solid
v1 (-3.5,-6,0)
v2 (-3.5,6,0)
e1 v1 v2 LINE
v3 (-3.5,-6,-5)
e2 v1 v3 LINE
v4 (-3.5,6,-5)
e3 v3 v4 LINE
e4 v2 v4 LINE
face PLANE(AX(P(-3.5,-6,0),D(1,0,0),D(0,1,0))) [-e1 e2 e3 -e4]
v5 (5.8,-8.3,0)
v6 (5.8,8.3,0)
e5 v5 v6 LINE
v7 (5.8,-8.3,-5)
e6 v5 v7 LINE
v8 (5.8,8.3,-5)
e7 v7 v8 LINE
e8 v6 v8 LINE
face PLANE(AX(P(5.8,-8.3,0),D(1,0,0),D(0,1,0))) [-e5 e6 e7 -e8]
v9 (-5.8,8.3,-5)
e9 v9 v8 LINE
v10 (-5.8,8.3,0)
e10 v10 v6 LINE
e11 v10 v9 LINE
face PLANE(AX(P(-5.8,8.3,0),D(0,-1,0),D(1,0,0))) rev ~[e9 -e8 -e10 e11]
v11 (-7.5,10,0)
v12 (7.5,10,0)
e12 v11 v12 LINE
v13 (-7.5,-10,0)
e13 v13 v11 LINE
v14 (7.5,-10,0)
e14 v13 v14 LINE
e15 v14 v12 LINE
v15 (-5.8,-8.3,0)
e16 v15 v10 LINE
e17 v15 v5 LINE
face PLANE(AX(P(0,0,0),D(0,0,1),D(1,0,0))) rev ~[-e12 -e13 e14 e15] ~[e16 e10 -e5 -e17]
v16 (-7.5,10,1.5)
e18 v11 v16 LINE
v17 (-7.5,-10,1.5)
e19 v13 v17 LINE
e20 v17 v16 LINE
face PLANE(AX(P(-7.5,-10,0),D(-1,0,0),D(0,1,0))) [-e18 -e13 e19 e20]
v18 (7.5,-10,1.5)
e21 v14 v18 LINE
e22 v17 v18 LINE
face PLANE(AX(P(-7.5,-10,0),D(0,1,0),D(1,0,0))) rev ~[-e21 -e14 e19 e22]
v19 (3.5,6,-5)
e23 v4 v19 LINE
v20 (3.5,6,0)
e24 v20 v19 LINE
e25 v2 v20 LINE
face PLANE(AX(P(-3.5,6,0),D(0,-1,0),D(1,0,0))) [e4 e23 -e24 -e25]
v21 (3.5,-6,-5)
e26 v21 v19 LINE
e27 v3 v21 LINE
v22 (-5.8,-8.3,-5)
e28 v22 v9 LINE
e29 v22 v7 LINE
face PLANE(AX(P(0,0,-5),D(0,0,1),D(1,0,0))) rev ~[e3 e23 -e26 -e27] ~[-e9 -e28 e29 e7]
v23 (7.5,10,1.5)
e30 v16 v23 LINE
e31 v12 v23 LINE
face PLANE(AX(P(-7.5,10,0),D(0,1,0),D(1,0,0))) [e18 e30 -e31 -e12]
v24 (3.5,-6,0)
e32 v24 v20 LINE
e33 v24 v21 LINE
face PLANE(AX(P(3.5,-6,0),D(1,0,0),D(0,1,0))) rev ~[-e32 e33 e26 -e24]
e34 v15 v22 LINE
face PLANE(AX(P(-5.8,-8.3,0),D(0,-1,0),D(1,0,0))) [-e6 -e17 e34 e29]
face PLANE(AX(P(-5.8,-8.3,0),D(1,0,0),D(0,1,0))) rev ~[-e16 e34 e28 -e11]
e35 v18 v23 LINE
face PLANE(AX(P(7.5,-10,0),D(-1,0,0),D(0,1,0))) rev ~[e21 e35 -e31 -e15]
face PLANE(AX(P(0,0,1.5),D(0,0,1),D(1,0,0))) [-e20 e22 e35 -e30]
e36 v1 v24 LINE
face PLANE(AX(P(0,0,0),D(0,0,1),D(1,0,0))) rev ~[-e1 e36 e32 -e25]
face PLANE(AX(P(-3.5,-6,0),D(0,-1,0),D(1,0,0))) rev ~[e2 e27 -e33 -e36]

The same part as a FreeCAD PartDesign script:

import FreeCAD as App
import Part
import Sketcher
from FreeCAD import Vector

doc = App.newDocument("Part")
body = doc.addObject("PartDesign::Body", "Body")

# Sketch on XY plane
sketch1 = body.newObject("Sketcher::SketchObject", "Sketch")
sketch1.AttachmentSupport = (doc.getObject("XY_Plane"), [""])
sketch1.MapMode = "FlatFace"
sketch1.addGeometry(Part.LineSegment(Vector(-8, 10, 0), Vector(-8, -10, 0)), False)
sketch1.addGeometry(Part.LineSegment(Vector(-8, -10, 0), Vector(8, -10, 0)), False)
sketch1.addGeometry(Part.LineSegment(Vector(8, -10, 0), Vector(8, 10, 0)), False)
sketch1.addGeometry(Part.LineSegment(Vector(8, 10, 0), Vector(-8, 10, 0)), False)
sketch1.addConstraint(Sketcher.Constraint("Coincident", 0, 2, 1, 1))
sketch1.addConstraint(Sketcher.Constraint("Coincident", 1, 2, 2, 1))
sketch1.addConstraint(Sketcher.Constraint("Coincident", 2, 2, 3, 1))
sketch1.addConstraint(Sketcher.Constraint("Coincident", 3, 2, 0, 1))
sketch1.addConstraint(Sketcher.Constraint("Vertical", 0))
sketch1.addConstraint(Sketcher.Constraint("Horizontal", 1))
sketch1.addConstraint(Sketcher.Constraint("Vertical", 2))
sketch1.addConstraint(Sketcher.Constraint("Horizontal", 3))
sketch1.addConstraint(Sketcher.Constraint("Symmetric", 0, 2, 2, 2, -1, 1))
sketch1.addConstraint(Sketcher.Constraint("DistanceX", 1, 1, 1, 2, 15.0))
sketch1.addConstraint(Sketcher.Constraint("DistanceY", 0, 2, 0, 1, 20.0))
pad1 = body.newObject("PartDesign::Pad", "Pad")
pad1.Profile = sketch1
pad1.Length = 1.5

# Sketch on XY plane
sketch2 = body.newObject("Sketcher::SketchObject", "Sketch001")
sketch2.AttachmentSupport = (doc.getObject("XY_Plane"), [""])
sketch2.MapMode = "FlatFace"
sketch2.addGeometry(Part.LineSegment(Vector(-6, 8, 0), Vector(-6, -8, 0)), False)
sketch2.addGeometry(Part.LineSegment(Vector(-6, -8, 0), Vector(6, -8, 0)), False)
sketch2.addGeometry(Part.LineSegment(Vector(6, -8, 0), Vector(6, 8, 0)), False)
sketch2.addGeometry(Part.LineSegment(Vector(6, 8, 0), Vector(-6, 8, 0)), False)
sketch2.addGeometry(Part.LineSegment(Vector(4, -6, 0), Vector(-4, -6, 0)), False)
sketch2.addGeometry(Part.LineSegment(Vector(-4, -6, 0), Vector(-4, 6, 0)), False)
sketch2.addGeometry(Part.LineSegment(Vector(-4, 6, 0), Vector(4, 6, 0)), False)
sketch2.addGeometry(Part.LineSegment(Vector(4, 6, 0), Vector(4, -6, 0)), False)
sketch2.addConstraint(Sketcher.Constraint("Coincident", 0, 2, 1, 1))
sketch2.addConstraint(Sketcher.Constraint("Coincident", 1, 2, 2, 1))
sketch2.addConstraint(Sketcher.Constraint("Coincident", 2, 2, 3, 1))
sketch2.addConstraint(Sketcher.Constraint("Coincident", 3, 2, 0, 1))
sketch2.addConstraint(Sketcher.Constraint("Coincident", 4, 2, 5, 1))
sketch2.addConstraint(Sketcher.Constraint("Coincident", 5, 2, 6, 1))
sketch2.addConstraint(Sketcher.Constraint("Coincident", 6, 2, 7, 1))
sketch2.addConstraint(Sketcher.Constraint("Coincident", 7, 2, 4, 1))
sketch2.addConstraint(Sketcher.Constraint("Vertical", 0))
sketch2.addConstraint(Sketcher.Constraint("Horizontal", 1))
sketch2.addConstraint(Sketcher.Constraint("Vertical", 2))
sketch2.addConstraint(Sketcher.Constraint("Horizontal", 3))
sketch2.addConstraint(Sketcher.Constraint("Horizontal", 4))
sketch2.addConstraint(Sketcher.Constraint("Vertical", 5))
sketch2.addConstraint(Sketcher.Constraint("Horizontal", 6))
sketch2.addConstraint(Sketcher.Constraint("Vertical", 7))
sketch2.addConstraint(Sketcher.Constraint("Symmetric", 0, 2, 2, 2, -1, 1))
sketch2.addConstraint(Sketcher.Constraint("Symmetric", 4, 2, 6, 2, -1, 1))
sketch2.addConstraint(Sketcher.Constraint("DistanceX", 4, 2, 4, 1, 7.0))
sketch2.addConstraint(Sketcher.Constraint("DistanceY", 5, 1, 5, 2, 12.0))
sketch2.addConstraint(Sketcher.Constraint("DistanceX", 1, 1, 1, 2, 11.6))
sketch2.addConstraint(Sketcher.Constraint("DistanceY", 0, 2, 0, 1, 16.6))
pad2 = body.newObject("PartDesign::Pad", "Pad001")
pad2.Profile = sketch2
pad2.Length = 5
pad2.Reversed = True

doc.recompute()
